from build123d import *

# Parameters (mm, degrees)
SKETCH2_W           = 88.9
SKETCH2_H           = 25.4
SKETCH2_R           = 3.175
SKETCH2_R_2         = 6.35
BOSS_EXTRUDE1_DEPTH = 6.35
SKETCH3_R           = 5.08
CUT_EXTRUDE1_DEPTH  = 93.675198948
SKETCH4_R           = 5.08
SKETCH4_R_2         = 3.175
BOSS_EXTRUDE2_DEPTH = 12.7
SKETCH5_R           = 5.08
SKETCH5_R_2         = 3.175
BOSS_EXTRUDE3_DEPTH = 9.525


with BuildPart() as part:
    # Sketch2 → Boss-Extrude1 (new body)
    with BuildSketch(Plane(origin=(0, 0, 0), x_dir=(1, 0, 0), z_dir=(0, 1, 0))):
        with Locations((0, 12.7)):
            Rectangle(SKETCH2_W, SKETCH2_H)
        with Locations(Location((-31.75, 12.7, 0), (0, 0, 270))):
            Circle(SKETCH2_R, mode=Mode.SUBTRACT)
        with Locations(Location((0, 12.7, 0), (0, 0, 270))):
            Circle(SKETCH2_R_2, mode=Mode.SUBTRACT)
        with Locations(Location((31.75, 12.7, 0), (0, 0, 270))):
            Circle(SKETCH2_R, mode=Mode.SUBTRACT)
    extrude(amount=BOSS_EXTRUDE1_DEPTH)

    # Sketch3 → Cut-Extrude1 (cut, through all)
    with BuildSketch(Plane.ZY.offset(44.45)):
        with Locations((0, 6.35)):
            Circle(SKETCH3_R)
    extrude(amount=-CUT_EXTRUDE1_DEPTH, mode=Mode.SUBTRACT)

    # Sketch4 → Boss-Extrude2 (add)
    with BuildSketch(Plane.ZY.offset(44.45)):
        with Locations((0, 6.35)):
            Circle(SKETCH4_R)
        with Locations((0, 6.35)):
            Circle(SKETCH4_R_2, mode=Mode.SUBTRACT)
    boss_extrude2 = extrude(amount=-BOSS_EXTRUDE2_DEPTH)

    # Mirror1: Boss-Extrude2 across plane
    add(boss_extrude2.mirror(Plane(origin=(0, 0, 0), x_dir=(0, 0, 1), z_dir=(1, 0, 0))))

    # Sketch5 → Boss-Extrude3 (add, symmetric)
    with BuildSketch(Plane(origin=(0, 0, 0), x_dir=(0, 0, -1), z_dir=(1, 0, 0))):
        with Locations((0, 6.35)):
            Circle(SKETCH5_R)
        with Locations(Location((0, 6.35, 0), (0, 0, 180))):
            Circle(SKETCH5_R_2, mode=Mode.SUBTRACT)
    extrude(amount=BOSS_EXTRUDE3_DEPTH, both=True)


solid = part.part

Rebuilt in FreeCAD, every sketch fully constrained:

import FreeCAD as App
import Part
import Sketcher
from FreeCAD import Vector
Q = App.Units.Quantity

doc = App.newDocument("Part")
body = doc.addObject("PartDesign::Body", "Body")

sketch1 = body.newObject("Sketcher::SketchObject", "Sketch")
sketch1.AttachmentSupport = (doc.getObject("XZ_Plane"), [""])
sketch1.MapMode = "FlatFace"
sketch1.addGeometry([
    Part.LineSegment(Vector(-44.5, -25.4, 0), Vector(-44.5, 0, 0)),
    Part.LineSegment(Vector(-44.5, 0, 0), Vector(44.5, 0, 0)),
    Part.LineSegment(Vector(44.5, 0, 0), Vector(44.5, -25.4, 0)),
    Part.LineSegment(Vector(44.5, -25.4, 0), Vector(-44.5, -25.4, 0)),
    Part.Circle(Vector(-31.8, -12.7, 0), Vector(0, 0, 1), 3.2),
    Part.Circle(Vector(0, -12.7, 0), Vector(0, 0, 1), 6.3),
    Part.Circle(Vector(31.8, -12.7, 0), Vector(0, 0, 1), 3.2),
], False)
sketch1.addConstraint([
    Sketcher.Constraint("Coincident", 0, 2, 1, 1),
    Sketcher.Constraint("Coincident", 1, 2, 2, 1),
    Sketcher.Constraint("Coincident", 2, 2, 3, 1),
    Sketcher.Constraint("Coincident", 3, 2, 0, 1),
    Sketcher.Constraint("Vertical", 0),
    Sketcher.Constraint("Horizontal", 1),
    Sketcher.Constraint("Vertical", 2),
    Sketcher.Constraint("Horizontal", 3),
    Sketcher.Constraint("Equal", 4, 6),
    Sketcher.Constraint("Symmetric", 0, 2, 1, 2, -1, 1),
    Sketcher.Constraint("Symmetric", 4, 3, 6, 3, -2),
    Sketcher.Constraint("PointOnObject", 5, 3, -2),
    Sketcher.Constraint("Horizontal", 4, 3, 5, 3),
    Sketcher.Constraint("Diameter", 5, Q("0.5 in")),
    Sketcher.Constraint("Diameter", 4, Q("0.25 in")),
    Sketcher.Constraint("DistanceY", 0, 1, 0, 2, Q("1 in")),
    Sketcher.Constraint("DistanceX", 1, 1, 1, 2, Q("3.5 in")),
    Sketcher.Constraint("DistanceX", 0, 2, 6, 3, Q("3 in")),
    Sketcher.Constraint("DistanceY", 4, 3, -1, 1, Q("0.5 in")),
])
pad1 = body.newObject("PartDesign::Pad", "Pad")
pad1.Profile = sketch1
pad1.Length = Q("0.25 in")
pad1.Reversed = True

sketch2 = body.newObject("Sketcher::SketchObject", "Sketch001")
sketch2.AttachmentSupport = (doc.getObject("YZ_Plane"), [""])
sketch2.MapMode = "FlatFace"
sketch2.AttachmentOffset = App.Placement(Vector(0, 0, -1.75 * 25.4), App.Rotation())
sketch2.addGeometry(Part.Circle(Vector(6, 0, 0), Vector(0, 0, 1), 5), False)
sketch2.addConstraint([
    Sketcher.Constraint("PointOnObject", 0, 3, -1),
    Sketcher.Constraint("Diameter", 0, Q("0.4 in")),
    Sketcher.Constraint("DistanceX", -1, 1, 0, 3, Q("0.25 in")),
])
pocket1 = body.newObject("PartDesign::Pocket", "Pocket")
pocket1.Profile = sketch2
pocket1.Type = "ThroughAll"
pocket1.Reversed = True

sketch3 = body.newObject("Sketcher::SketchObject", "Sketch002")
sketch3.AttachmentSupport = (doc.getObject("YZ_Plane"), [""])
sketch3.MapMode = "FlatFace"
sketch3.AttachmentOffset = App.Placement(Vector(0, 0, -1.75 * 25.4), App.Rotation())
sketch3.addGeometry([
    Part.Circle(Vector(6.3, 0, 0), Vector(0, 0, 1), 5.1),
    Part.Circle(Vector(6.3, 0, 0), Vector(0, 0, 1), 3.2),
], False)
sketch3.addConstraint([
    Sketcher.Constraint("Coincident", 1, 3, 0, 3),
    Sketcher.Constraint("PointOnObject", 0, 3, -1),
    Sketcher.Constraint("Diameter", 0, Q("0.4 in")),
    Sketcher.Constraint("Diameter", 1, Q("0.25 in")),
    Sketcher.Constraint("DistanceX", -1, 1, 0, 3, Q("0.25 in")),
])
pad2 = body.newObject("PartDesign::Pad", "Pad001")
pad2.Profile = sketch3
pad2.Length = Q("0.5 in")
doc.recompute()

mirrored = body.newObject("PartDesign::Mirrored", "Mirrored")
mirrored.Originals = [pad2]
mirrored.MirrorPlane = (doc.getObject("YZ_Plane"), [""])
body.Tip = mirrored

sketch4 = body.newObject("Sketcher::SketchObject", "Sketch003")
sketch4.AttachmentSupport = (doc.getObject("YZ_Plane"), [""])
sketch4.MapMode = "FlatFace"
sketch4.addGeometry([
    Part.Circle(Vector(6.3, 0, 0), Vector(0, 0, 1), 5.1),
    Part.Circle(Vector(6.3, 0, 0), Vector(0, 0, 1), 3.2),
], False)
sketch4.addConstraint([
    Sketcher.Constraint("Coincident", 1, 3, 0, 3),
    Sketcher.Constraint("PointOnObject", 0, 3, -1),
    Sketcher.Constraint("Diameter", 0, Q("0.4 in")),
    Sketcher.Constraint("Diameter", 1, Q("0.25 in")),
    Sketcher.Constraint("DistanceX", -1, 1, 0, 3, Q("0.25 in")),
])
pad3 = body.newObject("PartDesign::Pad", "Pad002")
pad3.Profile = sketch4
pad3.Length = Q("0.75 in")
pad3.Midplane = True

doc.recompute()
